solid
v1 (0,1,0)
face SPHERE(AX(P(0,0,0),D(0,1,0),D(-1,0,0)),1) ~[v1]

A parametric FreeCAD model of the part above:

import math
import FreeCAD as App
import Part
import Sketcher
from FreeCAD import Vector

doc = App.newDocument("Part")
body = doc.addObject("PartDesign::Body", "Body")

sketch1 = body.newObject("Sketcher::SketchObject", "Sketch")
sketch1.AttachmentSupport = (doc.getObject("XY_Plane"), [""])
sketch1.MapMode = "FlatFace"
sketch1.addGeometry(Part.LineSegment(Vector(0, -1, 0), Vector(0, 1, 0)), False)
sketch1.addGeometry(Part.ArcOfCircle(Part.Circle(Vector(0, 0, 0), Vector(0, 0, 1), 1), math.radians(90), math.radians(270)), False)
sketch1.addConstraint(Sketcher.Constraint("Coincident", 0, 1, 1, 2))
sketch1.addConstraint(Sketcher.Constraint("Coincident", 1, 1, 0, 2))
sketch1.addConstraint(Sketcher.Constraint("Vertical", 0))
sketch1.addConstraint(Sketcher.Constraint("Coincident", 1, 3, -1, 1))
sketch1.addConstraint(Sketcher.Constraint("PointOnObject", 0, 1, -2))
sketch1.addConstraint(Sketcher.Constraint("Radius", 1, 1.0))
revolution = body.newObject("PartDesign::Revolution", "Revolution")
revolution.Profile = sketch1
revolution.ReferenceAxis = (sketch1, ["V_Axis"])
revolution.Angle = 360

doc.recompute()
